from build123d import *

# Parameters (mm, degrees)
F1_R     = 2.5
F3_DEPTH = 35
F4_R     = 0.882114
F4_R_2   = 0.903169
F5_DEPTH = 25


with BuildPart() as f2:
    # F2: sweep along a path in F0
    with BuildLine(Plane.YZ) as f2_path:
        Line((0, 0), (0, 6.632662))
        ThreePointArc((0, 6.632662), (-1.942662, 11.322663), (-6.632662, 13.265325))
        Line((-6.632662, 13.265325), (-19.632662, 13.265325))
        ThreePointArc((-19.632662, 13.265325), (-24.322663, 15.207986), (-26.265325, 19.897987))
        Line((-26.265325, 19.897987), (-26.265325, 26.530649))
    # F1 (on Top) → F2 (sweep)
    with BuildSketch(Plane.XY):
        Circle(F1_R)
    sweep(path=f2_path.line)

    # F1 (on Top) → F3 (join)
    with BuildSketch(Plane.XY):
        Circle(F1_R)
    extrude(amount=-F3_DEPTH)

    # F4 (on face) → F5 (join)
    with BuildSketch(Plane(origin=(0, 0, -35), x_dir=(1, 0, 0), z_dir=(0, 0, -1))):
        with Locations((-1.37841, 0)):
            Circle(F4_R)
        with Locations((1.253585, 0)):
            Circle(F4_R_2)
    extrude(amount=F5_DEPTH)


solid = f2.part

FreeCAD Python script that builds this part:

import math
import FreeCAD as App
import Part
import Sketcher

V = App.Vector

doc = App.newDocument("Part")
params = doc.addObject("Spreadsheet::Sheet", "Params")
for row, (alias, value) in enumerate([
    ("sketch1_diameter", "5 mm"),
    ("sketch2_width", "13 mm"),
    ("sketch3_diameter", "5 mm"),
    ("pad1_length", "35 mm"),
    ("pad2_length", "25 mm"),
], start=1):
    params.set(f"A{row}", alias)
    params.set(f"B{row}", "=" + value)
    params.setAlias(f"B{row}", alias)

body = doc.addObject("PartDesign::Body", "Body")

# Sketch on XY plane
sketch1 = body.newObject("Sketcher::SketchObject", "Sketch")
sketch1.AttachmentSupport = (doc.getObject("XY_Plane"), [""])
sketch1.MapMode = "FlatFace"
sketch1.addGeometry(Part.Circle(V(0, 0, 0), V(0, 0, 1), 2.5), False)
sketch1.addConstraint(Sketcher.Constraint("Coincident", 0, 3, -1, 1))
sketch1.addConstraint(Sketcher.Constraint("Diameter", 0, 5.0))
sketch1.setExpression("Constraints[1]", "Params.sketch1_diameter")

# Sketch on YZ plane
sketch2 = body.newObject("Sketcher::SketchObject", "Sketch001")
sketch2.AttachmentSupport = (doc.getObject("YZ_Plane"), [""])
sketch2.MapMode = "FlatFace"
sketch2.addGeometry(Part.LineSegment(V(0, 0, 0), V(0, 7, 0)), False)
sketch2.addGeometry(Part.ArcOfCircle(Part.Circle(V(-7, 7, 0), V(0, 0, 1), 7), math.radians(0), math.radians(90)), False)
sketch2.addGeometry(Part.LineSegment(V(-7, 13, 0), V(-20, 13, 0)), False)
sketch2.addGeometry(Part.ArcOfCircle(Part.Circle(V(-20, 20, 0), V(0, 0, 1), 7), math.radians(180), math.radians(270)), False)
sketch2.addGeometry(Part.LineSegment(V(-26, 20, 0), V(-26, 27, 0)), False)
sketch2.addConstraint(Sketcher.Constraint("Tangent", 0, 2, 1, 1))
sketch2.addConstraint(Sketcher.Constraint("Tangent", 1, 2, 2, 1))
sketch2.addConstraint(Sketcher.Constraint("Tangent", 2, 2, 3, 2))
sketch2.addConstraint(Sketcher.Constraint("Tangent", 3, 1, 4, 1))
sketch2.addConstraint(Sketcher.Constraint("Vertical", 0))
sketch2.addConstraint(Sketcher.Constraint("Horizontal", 2))
sketch2.addConstraint(Sketcher.Constraint("Vertical", 4))
sketch2.addConstraint(Sketcher.Constraint("Coincident", 0, 1, -1, 1))
sketch2.addConstraint(Sketcher.Constraint("Equal", 1, 3))
sketch2.addConstraint(Sketcher.Constraint("Equal", 0, 4))
sketch2.addConstraint(Sketcher.Constraint("DistanceX", 2, 2, 2, 1, 13.0))
sketch2.addConstraint(Sketcher.Constraint("Radius", 3, 6.632661))
sketch2.addConstraint(Sketcher.Constraint("DistanceY", 0, 1, 0, 2, 6.632662))
sketch2.setExpression("Constraints[10]", "Params.sketch2_width")
doc.recompute()

additivepipe = body.newObject("PartDesign::AdditivePipe", "AdditivePipe")
additivepipe.Profile = sketch1
additivepipe.Spine = (sketch2, ["Edge1", "Edge2", "Edge3", "Edge4", "Edge5"])

# Sketch on XY plane
sketch3 = body.newObject("Sketcher::SketchObject", "Sketch002")
sketch3.AttachmentSupport = (doc.getObject("XY_Plane"), [""])
sketch3.MapMode = "FlatFace"
sketch3.addGeometry(Part.Circle(V(0, 0, 0), V(0, 0, 1), 2.5), False)
sketch3.addConstraint(Sketcher.Constraint("Coincident", 0, 3, -1, 1))
sketch3.addConstraint(Sketcher.Constraint("Diameter", 0, 5.0))
sketch3.setExpression("Constraints[1]", "Params.sketch3_diameter")
pad1 = body.newObject("PartDesign::Pad", "Pad")
pad1.Profile = sketch3
pad1.setExpression("Length", "Params.pad1_length")
pad1.Reversed = True

# Sketch on XY plane
sketch4 = body.newObject("Sketcher::SketchObject", "Sketch003")
sketch4.AttachmentSupport = (doc.getObject("XY_Plane"), [""])
sketch4.MapMode = "FlatFace"
sketch4.AttachmentOffset = App.Placement(V(0, 0, -35), App.Rotation())
sketch4.addGeometry(Part.Circle(V(-1.4, 0, 0), V(0, 0, 1), 0.9), False)
sketch4.addGeometry(Part.Circle(V(1.3, 0, 0), V(0, 0, 1), 0.9), False)
sketch4.addConstraint(Sketcher.Constraint("PointOnObject", 0, 3, -1))
sketch4.addConstraint(Sketcher.Constraint("PointOnObject", 1, 3, -1))
sketch4.addConstraint(Sketcher.Constraint("Diameter", 0, 1.764228))
sketch4.addConstraint(Sketcher.Constraint("Diameter", 1, 1.806338))
sketch4.addConstraint(Sketcher.Constraint("DistanceX", 0, 3, -1, 1, 1.37841))
sketch4.addConstraint(Sketcher.Constraint("DistanceX", -1, 1, 1, 3, 1.253585))
pad2 = body.newObject("PartDesign::Pad", "Pad001")
pad2.Profile = sketch4
pad2.setExpression("Length", "Params.pad2_length")
pad2.Reversed = True

doc.recompute()
